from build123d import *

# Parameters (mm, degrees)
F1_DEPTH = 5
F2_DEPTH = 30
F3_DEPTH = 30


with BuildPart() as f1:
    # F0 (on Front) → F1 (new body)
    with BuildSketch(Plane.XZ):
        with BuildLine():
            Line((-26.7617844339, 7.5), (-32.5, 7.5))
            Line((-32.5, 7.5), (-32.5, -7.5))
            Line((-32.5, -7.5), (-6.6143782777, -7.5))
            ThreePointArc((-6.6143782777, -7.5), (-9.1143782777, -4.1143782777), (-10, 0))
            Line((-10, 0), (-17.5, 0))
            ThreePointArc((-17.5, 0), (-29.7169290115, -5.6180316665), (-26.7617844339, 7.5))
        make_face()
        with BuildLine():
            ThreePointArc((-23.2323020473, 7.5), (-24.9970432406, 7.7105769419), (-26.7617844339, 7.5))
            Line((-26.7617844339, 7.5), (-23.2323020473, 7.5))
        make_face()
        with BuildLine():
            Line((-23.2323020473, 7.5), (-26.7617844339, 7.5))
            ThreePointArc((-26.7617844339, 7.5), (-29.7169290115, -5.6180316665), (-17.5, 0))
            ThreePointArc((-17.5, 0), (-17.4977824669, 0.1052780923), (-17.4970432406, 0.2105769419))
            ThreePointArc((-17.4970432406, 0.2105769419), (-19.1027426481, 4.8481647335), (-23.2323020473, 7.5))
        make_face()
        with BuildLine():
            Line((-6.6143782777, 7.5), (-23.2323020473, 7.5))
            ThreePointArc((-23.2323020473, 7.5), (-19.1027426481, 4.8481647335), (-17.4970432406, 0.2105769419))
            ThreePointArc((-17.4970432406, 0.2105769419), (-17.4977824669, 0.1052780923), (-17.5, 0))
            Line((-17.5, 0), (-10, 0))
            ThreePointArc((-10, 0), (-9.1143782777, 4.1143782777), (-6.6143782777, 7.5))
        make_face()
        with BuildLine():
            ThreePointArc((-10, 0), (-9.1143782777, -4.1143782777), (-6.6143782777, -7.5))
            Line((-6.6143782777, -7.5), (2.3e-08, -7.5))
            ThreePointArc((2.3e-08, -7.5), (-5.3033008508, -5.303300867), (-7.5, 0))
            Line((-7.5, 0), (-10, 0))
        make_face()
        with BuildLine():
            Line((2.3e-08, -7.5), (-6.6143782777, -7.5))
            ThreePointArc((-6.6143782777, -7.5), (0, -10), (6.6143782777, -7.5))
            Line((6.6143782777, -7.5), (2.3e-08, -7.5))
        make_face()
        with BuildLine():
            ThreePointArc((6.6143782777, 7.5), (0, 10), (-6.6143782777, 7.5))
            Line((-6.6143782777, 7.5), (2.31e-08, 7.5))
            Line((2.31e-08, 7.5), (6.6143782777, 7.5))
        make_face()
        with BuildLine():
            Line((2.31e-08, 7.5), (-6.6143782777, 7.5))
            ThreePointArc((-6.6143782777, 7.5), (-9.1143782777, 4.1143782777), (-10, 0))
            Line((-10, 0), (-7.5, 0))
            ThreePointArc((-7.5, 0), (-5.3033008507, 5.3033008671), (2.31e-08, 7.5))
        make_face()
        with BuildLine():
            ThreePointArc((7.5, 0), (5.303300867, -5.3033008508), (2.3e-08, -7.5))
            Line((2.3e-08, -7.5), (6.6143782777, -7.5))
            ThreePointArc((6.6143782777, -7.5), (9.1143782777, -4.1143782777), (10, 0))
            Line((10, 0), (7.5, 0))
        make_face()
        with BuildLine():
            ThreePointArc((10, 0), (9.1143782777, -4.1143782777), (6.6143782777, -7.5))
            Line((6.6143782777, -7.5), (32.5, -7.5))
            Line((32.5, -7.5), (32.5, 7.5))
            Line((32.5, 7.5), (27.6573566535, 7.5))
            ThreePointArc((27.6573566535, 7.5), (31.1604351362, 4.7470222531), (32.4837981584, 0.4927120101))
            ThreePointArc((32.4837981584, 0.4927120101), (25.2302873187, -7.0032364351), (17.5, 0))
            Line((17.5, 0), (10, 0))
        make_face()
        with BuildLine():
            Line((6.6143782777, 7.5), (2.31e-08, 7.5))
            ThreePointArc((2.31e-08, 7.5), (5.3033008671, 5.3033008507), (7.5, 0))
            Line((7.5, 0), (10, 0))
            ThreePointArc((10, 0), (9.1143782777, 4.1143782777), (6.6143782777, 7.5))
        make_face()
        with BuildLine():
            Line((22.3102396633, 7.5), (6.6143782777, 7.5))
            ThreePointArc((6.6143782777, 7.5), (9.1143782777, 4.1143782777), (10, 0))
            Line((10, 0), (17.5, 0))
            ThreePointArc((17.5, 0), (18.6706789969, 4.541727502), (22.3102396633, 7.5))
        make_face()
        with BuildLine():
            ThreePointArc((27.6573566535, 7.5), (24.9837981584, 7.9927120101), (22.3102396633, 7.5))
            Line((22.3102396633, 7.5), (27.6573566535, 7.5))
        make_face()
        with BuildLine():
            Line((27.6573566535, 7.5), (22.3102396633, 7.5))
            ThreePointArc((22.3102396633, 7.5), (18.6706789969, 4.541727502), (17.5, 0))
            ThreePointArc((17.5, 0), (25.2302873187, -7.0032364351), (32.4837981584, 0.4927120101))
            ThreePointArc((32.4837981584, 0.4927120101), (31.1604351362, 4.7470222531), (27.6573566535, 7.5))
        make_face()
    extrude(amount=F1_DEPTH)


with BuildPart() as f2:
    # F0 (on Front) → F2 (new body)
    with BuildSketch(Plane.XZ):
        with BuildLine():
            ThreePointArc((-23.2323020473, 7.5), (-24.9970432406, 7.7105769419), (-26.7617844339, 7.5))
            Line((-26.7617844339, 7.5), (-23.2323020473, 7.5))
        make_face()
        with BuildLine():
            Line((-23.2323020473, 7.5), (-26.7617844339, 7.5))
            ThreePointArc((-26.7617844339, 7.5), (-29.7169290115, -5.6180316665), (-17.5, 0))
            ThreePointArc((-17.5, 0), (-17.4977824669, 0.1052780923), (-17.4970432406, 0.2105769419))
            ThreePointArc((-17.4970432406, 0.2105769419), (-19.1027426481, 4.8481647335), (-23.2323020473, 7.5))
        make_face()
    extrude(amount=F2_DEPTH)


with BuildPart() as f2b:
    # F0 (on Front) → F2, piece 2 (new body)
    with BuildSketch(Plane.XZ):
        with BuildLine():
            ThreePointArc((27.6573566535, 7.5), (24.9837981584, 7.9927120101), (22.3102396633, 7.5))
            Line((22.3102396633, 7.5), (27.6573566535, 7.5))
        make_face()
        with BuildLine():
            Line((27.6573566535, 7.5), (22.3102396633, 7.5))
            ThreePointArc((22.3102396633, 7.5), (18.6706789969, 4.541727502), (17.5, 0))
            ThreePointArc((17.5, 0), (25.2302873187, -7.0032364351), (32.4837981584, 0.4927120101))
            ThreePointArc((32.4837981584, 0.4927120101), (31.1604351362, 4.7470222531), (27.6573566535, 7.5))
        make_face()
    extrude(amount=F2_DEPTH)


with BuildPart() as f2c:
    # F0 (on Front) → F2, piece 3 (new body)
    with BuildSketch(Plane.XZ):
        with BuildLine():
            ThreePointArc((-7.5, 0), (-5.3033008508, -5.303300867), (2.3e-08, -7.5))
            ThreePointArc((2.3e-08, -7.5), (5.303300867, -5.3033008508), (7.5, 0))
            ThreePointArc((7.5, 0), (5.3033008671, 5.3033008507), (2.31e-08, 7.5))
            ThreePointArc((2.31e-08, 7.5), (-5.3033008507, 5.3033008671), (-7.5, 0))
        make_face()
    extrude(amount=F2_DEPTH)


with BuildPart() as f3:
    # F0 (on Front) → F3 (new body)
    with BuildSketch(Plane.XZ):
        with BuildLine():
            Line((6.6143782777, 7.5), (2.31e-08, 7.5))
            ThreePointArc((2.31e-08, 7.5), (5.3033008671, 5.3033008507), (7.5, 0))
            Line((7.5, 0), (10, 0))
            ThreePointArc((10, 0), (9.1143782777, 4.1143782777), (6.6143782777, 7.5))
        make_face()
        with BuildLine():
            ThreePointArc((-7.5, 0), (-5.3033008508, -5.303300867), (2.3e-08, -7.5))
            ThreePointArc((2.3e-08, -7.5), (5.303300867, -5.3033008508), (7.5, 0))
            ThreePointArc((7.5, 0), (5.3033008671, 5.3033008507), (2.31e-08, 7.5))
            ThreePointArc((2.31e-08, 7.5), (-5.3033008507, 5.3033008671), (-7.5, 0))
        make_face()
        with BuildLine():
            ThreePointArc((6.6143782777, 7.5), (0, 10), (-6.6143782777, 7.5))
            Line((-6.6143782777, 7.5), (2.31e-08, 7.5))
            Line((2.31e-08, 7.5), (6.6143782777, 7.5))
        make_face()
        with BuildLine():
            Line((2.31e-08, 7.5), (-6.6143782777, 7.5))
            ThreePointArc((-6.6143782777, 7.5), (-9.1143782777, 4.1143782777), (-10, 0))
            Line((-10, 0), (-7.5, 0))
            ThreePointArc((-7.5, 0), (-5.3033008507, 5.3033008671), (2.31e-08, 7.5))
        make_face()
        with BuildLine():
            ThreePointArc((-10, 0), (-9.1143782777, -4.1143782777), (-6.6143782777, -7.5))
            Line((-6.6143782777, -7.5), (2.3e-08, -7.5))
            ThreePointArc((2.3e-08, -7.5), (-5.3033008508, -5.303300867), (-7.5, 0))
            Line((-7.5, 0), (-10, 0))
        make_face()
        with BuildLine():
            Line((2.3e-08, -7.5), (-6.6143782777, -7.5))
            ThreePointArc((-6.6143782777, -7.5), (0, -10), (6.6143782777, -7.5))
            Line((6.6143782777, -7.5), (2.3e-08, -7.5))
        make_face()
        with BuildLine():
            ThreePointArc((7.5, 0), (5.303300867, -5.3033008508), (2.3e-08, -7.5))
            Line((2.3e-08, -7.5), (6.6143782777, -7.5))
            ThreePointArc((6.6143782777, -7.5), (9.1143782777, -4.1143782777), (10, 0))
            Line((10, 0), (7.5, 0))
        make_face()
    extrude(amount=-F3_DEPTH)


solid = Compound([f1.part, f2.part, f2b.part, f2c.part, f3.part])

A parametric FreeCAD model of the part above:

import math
import FreeCAD as App
import Part
import Sketcher
from FreeCAD import Vector

doc = App.newDocument("Part")
body = doc.addObject("PartDesign::Body", "Body")

sketch1 = body.newObject("Sketcher::SketchObject", "Sketch")
sketch1.AttachmentSupport = (doc.getObject("XZ_Plane"), [""])
sketch1.MapMode = "FlatFace"
sketch1.addGeometry(Part.LineSegment(Vector(-26.8, 7.5, 0), Vector(-32.5, 7.5, 0)), False)
sketch1.addGeometry(Part.LineSegment(Vector(-32.5, 7.5, 0), Vector(-32.5, -7.5, 0)), False)
sketch1.addGeometry(Part.LineSegment(Vector(-32.5, -7.5, 0), Vector(-6.6, -7.5, 0)), False)
sketch1.addGeometry(Part.ArcOfCircle(Part.Circle(Vector(0, 0, 0), Vector(0, 0, 1), 10), math.radians(-131), math.radians(-49)), False)
sketch1.addGeometry(Part.LineSegment(Vector(6.6, -7.5, 0), Vector(32.5, -7.5, 0)), False)
sketch1.addGeometry(Part.LineSegment(Vector(32.5, -7.5, 0), Vector(32.5, 7.5, 0)), False)
sketch1.addGeometry(Part.LineSegment(Vector(32.5, 7.5, 0), Vector(27.7, 7.5, 0)), False)
sketch1.addGeometry(Part.ArcOfCircle(Part.Circle(Vector(25, 0.5, 0), Vector(0, 0, 1), 7.5), math.radians(69), math.radians(111)), False)
sketch1.addGeometry(Part.LineSegment(Vector(22.3, 7.5, 0), Vector(6.6, 7.5, 0)), False)
sketch1.addGeometry(Part.ArcOfCircle(Part.Circle(Vector(0, 0, 0), Vector(0, 0, 1), 10), math.radians(49), math.radians(131)), False)
sketch1.addGeometry(Part.LineSegment(Vector(-6.6, 7.5, 0), Vector(-23.2, 7.5, 0)), False)
sketch1.addGeometry(Part.ArcOfCircle(Part.Circle(Vector(-25, 0.2, 0), Vector(0, 0, 1), 7.5), math.radians(76), math.radians(104)), False)
sketch1.addGeometry(Part.Circle(Vector(0, 0, 0), Vector(0, 0, 1), 7.5), False)
sketch1.addConstraint(Sketcher.Constraint("Coincident", 0, 2, 1, 1))
sketch1.addConstraint(Sketcher.Constraint("Coincident", 1, 2, 2, 1))
sketch1.addConstraint(Sketcher.Constraint("Coincident", 2, 2, 3, 1))
sketch1.addConstraint(Sketcher.Constraint("Coincident", 3, 2, 4, 1))
sketch1.addConstraint(Sketcher.Constraint("Coincident", 4, 2, 5, 1))
sketch1.addConstraint(Sketcher.Constraint("Coincident", 5, 2, 6, 1))
sketch1.addConstraint(Sketcher.Constraint("Coincident", 6, 2, 7, 1))
sketch1.addConstraint(Sketcher.Constraint("Coincident", 7, 2, 8, 1))
sketch1.addConstraint(Sketcher.Constraint("Coincident", 8, 2, 9, 1))
sketch1.addConstraint(Sketcher.Constraint("Coincident", 9, 2, 10, 1))
sketch1.addConstraint(Sketcher.Constraint("Coincident", 10, 2, 11, 1))
sketch1.addConstraint(Sketcher.Constraint("Coincident", 11, 2, 0, 1))
sketch1.addConstraint(Sketcher.Constraint("Horizontal", 0))
sketch1.addConstraint(Sketcher.Constraint("Vertical", 1))
sketch1.addConstraint(Sketcher.Constraint("Horizontal", 2))
sketch1.addConstraint(Sketcher.Constraint("Horizontal", 4))
sketch1.addConstraint(Sketcher.Constraint("Vertical", 5))
sketch1.addConstraint(Sketcher.Constraint("Horizontal", 6))
sketch1.addConstraint(Sketcher.Constraint("Horizontal", 8))
sketch1.addConstraint(Sketcher.Constraint("Horizontal", 10))
sketch1.addConstraint(Sketcher.Constraint("Coincident", 3, 3, -1, 1))
sketch1.addConstraint(Sketcher.Constraint("Coincident", 9, 3, -1, 1))
sketch1.addConstraint(Sketcher.Constraint("Coincident", 12, 3, -1, 1))
sketch1.addConstraint(Sketcher.Constraint("Equal", 3, 9))
sketch1.addConstraint(Sketcher.Constraint("Equal", 7, 11))
sketch1.addConstraint(Sketcher.Constraint("Equal", 11, 12))
sketch1.addConstraint(Sketcher.Constraint("Symmetric", 0, 2, 4, 2, -1, 1))
sketch1.addConstraint(Sketcher.Constraint("Horizontal", 2, 2, 3, 2))
sketch1.addConstraint(Sketcher.Constraint("Horizontal", 0, 2, 5, 2))
sketch1.addConstraint(Sketcher.Constraint("Horizontal", 6, 2, 7, 2))
sketch1.addConstraint(Sketcher.Constraint("Horizontal", 8, 2, 9, 2))
sketch1.addConstraint(Sketcher.Constraint("Diameter", 12, 15.0))
sketch1.addConstraint(Sketcher.Constraint("Radius", 3, 10.0))
sketch1.addConstraint(Sketcher.Constraint("DistanceY", 1, 2, 1, 1, 15.0))
sketch1.addConstraint(Sketcher.Constraint("DistanceX", 0, 2, -1, 1, 32.5))
sketch1.addConstraint(Sketcher.Constraint("DistanceX", 8, 2, 8, 1, 15.695861))
sketch1.addConstraint(Sketcher.Constraint("DistanceX", -1, 1, 7, 3, 24.983798))
sketch1.addConstraint(Sketcher.Constraint("DistanceX", 0, 2, 0, 1, 5.738216))
sketch1.addConstraint(Sketcher.Constraint("DistanceX", 10, 2, 10, 1, 16.617924))
pad1 = body.newObject("PartDesign::Pad", "Pad")
pad1.Profile = sketch1
pad1.Length = 5
body2 = doc.addObject("PartDesign::Body", "Body001")

sketch2 = body2.newObject("Sketcher::SketchObject", "Sketch001")
sketch2.AttachmentSupport = (doc.getObject("XZ_Plane001"), [""])
sketch2.MapMode = "FlatFace"
sketch2.addGeometry(Part.ArcOfCircle(Part.Circle(Vector(-25, 0.21, 0), Vector(0, 0, 1), 7.5), math.radians(76), math.radians(104)), False)
sketch2.addGeometry(Part.ArcOfCircle(Part.Circle(Vector(-25, 0.21, 0), Vector(0, 0, 1), 7.5), math.radians(104), math.radians(358)), False)
sketch2.addGeometry(Part.ArcOfCircle(Part.Circle(Vector(-25, 0.21, 0), Vector(0, 0, 1), 7.5), math.radians(-1.61), math.radians(0)), False)
sketch2.addGeometry(Part.ArcOfCircle(Part.Circle(Vector(-25, 0.21, 0), Vector(0, 0, 1), 7.5), math.radians(0), math.radians(76)), False)
sketch2.addConstraint(Sketcher.Constraint("Tangent", 0, 2, 1, 1))
sketch2.addConstraint(Sketcher.Constraint("Tangent", 1, 2, 2, 1))
sketch2.addConstraint(Sketcher.Constraint("Tangent", 2, 2, 3, 1))
sketch2.addConstraint(Sketcher.Constraint("Tangent", 3, 2, 0, 1))
sketch2.addConstraint(Sketcher.Constraint("Equal", 0, 1))
sketch2.addConstraint(Sketcher.Constraint("PointOnObject", 1, 2, -1))
sketch2.addConstraint(Sketcher.Constraint("Horizontal", 3, 3, 2, 2))
sketch2.addConstraint(Sketcher.Constraint("Horizontal", 0, 2, 3, 2))
sketch2.addConstraint(Sketcher.Constraint("Radius", 0, 7.5))
sketch2.addConstraint(Sketcher.Constraint("DistanceY", -1, 1, 0, 2, 7.5))
sketch2.addConstraint(Sketcher.Constraint("DistanceX", 1, 2, -1, 1, 17.5))
sketch2.addConstraint(Sketcher.Constraint("DistanceX", 0, 2, 2, 3, 1.764741))
pad2 = body2.newObject("PartDesign::Pad", "Pad001")
pad2.Profile = sketch2
pad2.Length = 30
body3 = doc.addObject("PartDesign::Body", "Body002")

sketch3 = body3.newObject("Sketcher::SketchObject", "Sketch002")
sketch3.AttachmentSupport = (doc.getObject("XZ_Plane002"), [""])
sketch3.MapMode = "FlatFace"
sketch3.addGeometry(Part.ArcOfCircle(Part.Circle(Vector(25, 0, 0), Vector(0, 0, 1), 8), math.radians(69), math.radians(111)), False)
sketch3.addGeometry(Part.ArcOfCircle(Part.Circle(Vector(25, 0, 0), Vector(0, 0, 1), 8), math.radians(111), math.radians(184)), False)
sketch3.addGeometry(Part.ArcOfCircle(Part.Circle(Vector(25, 0, 0), Vector(0, 0, 1), 8), math.radians(-176), math.radians(0)), False)
sketch3.addGeometry(Part.ArcOfCircle(Part.Circle(Vector(25, 0, 0), Vector(0, 0, 1), 8), math.radians(0), math.radians(69)), False)
sketch3.addConstraint(Sketcher.Constraint("Tangent", 0, 2, 1, 1))
sketch3.addConstraint(Sketcher.Constraint("Tangent", 1, 2, 2, 1))
sketch3.addConstraint(Sketcher.Constraint("Tangent", 2, 2, 3, 1))
sketch3.addConstraint(Sketcher.Constraint("Tangent", 3, 2, 0, 1))
sketch3.addConstraint(Sketcher.Constraint("Equal", 0, 1))
sketch3.addConstraint(Sketcher.Constraint("PointOnObject", 1, 2, -1))
sketch3.addConstraint(Sketcher.Constraint("Horizontal", 3, 3, 2, 2))
sketch3.addConstraint(Sketcher.Constraint("Horizontal", 0, 2, 3, 2))
sketch3.addConstraint(Sketcher.Constraint("Radius", 0, 7.5))
sketch3.addConstraint(Sketcher.Constraint("DistanceY", -1, 1, 0, 2, 7.5))
sketch3.addConstraint(Sketcher.Constraint("DistanceX", -1, 1, 1, 2, 17.5))
sketch3.addConstraint(Sketcher.Constraint("DistanceX", -1, 1, 0, 3, 24.983798))
pad3 = body3.newObject("PartDesign::Pad", "Pad002")
pad3.Profile = sketch3
pad3.Length = 30
body4 = doc.addObject("PartDesign::Body", "Body003")

sketch4 = body4.newObject("Sketcher::SketchObject", "Sketch003")
sketch4.AttachmentSupport = (doc.getObject("XZ_Plane003"), [""])
sketch4.MapMode = "FlatFace"
sketch4.addGeometry(Part.Circle(Vector(0, 0, 0), Vector(0, 0, 1), 8), False)
sketch4.addConstraint(Sketcher.Constraint("Coincident", 0, 3, -1, 1))
sketch4.addConstraint(Sketcher.Constraint("Diameter", 0, 15.0))
pad4 = body4.newObject("PartDesign::Pad", "Pad003")
pad4.Profile = sketch4
pad4.Length = 30
body5 = doc.addObject("PartDesign::Body", "Body004")

sketch5 = body5.newObject("Sketcher::SketchObject", "Sketch004")
sketch5.AttachmentSupport = (doc.getObject("XZ_Plane004"), [""])
sketch5.MapMode = "FlatFace"
sketch5.addGeometry(Part.ArcOfCircle(Part.Circle(Vector(0, 0, 0), Vector(0, 0, 1), 10), math.radians(0), math.radians(49)), False)
sketch5.addGeometry(Part.ArcOfCircle(Part.Circle(Vector(0, 0, 0), Vector(0, 0, 1), 10), math.radians(49), math.radians(131)), False)
sketch5.addGeometry(Part.ArcOfCircle(Part.Circle(Vector(0, 0, 0), Vector(0, 0, 1), 10), math.radians(131), math.radians(180)), False)
sketch5.addGeometry(Part.ArcOfCircle(Part.Circle(Vector(0, 0, 0), Vector(0, 0, 1), 10), math.radians(180), math.radians(229)), False)
sketch5.addGeometry(Part.ArcOfCircle(Part.Circle(Vector(0, 0, 0), Vector(0, 0, 1), 10), math.radians(-131), math.radians(-49)), False)
sketch5.addGeometry(Part.ArcOfCircle(Part.Circle(Vector(0, 0, 0), Vector(0, 0, 1), 10), math.radians(-49), math.radians(0)), False)
sketch5.addConstraint(Sketcher.Constraint("Tangent", 0, 2, 1, 1))
sketch5.addConstraint(Sketcher.Constraint("Tangent", 1, 2, 2, 1))
sketch5.addConstraint(Sketcher.Constraint("Tangent", 2, 2, 3, 1))
sketch5.addConstraint(Sketcher.Constraint("Tangent", 3, 2, 4, 1))
sketch5.addConstraint(Sketcher.Constraint("Tangent", 4, 2, 5, 1))
sketch5.addConstraint(Sketcher.Constraint("Tangent", 5, 2, 0, 1))
sketch5.addConstraint(Sketcher.Constraint("Coincident", 0, 3, -1, 1))
sketch5.addConstraint(Sketcher.Constraint("Coincident", 2, 3, -1, 1))
sketch5.addConstraint(Sketcher.Constraint("Equal", 2, 3))
sketch5.addConstraint(Sketcher.Constraint("PointOnObject", 2, 2, -1))
sketch5.addConstraint(Sketcher.Constraint("PointOnObject", 5, 2, -1))
sketch5.addConstraint(Sketcher.Constraint("Horizontal", 0, 2, 1, 2))
sketch5.addConstraint(Sketcher.Constraint("Horizontal", 3, 2, 4, 2))
sketch5.addConstraint(Sketcher.Constraint("Vertical", 1, 2, 3, 2))
sketch5.addConstraint(Sketcher.Constraint("Radius", 0, 10.0))
sketch5.addConstraint(Sketcher.Constraint("DistanceY", -1, 1, 0, 2, 7.5))
pad5 = body5.newObject("PartDesign::Pad", "Pad004")
pad5.Profile = sketch5
pad5.Length = 30
pad5.Reversed = True

doc.recompute()
